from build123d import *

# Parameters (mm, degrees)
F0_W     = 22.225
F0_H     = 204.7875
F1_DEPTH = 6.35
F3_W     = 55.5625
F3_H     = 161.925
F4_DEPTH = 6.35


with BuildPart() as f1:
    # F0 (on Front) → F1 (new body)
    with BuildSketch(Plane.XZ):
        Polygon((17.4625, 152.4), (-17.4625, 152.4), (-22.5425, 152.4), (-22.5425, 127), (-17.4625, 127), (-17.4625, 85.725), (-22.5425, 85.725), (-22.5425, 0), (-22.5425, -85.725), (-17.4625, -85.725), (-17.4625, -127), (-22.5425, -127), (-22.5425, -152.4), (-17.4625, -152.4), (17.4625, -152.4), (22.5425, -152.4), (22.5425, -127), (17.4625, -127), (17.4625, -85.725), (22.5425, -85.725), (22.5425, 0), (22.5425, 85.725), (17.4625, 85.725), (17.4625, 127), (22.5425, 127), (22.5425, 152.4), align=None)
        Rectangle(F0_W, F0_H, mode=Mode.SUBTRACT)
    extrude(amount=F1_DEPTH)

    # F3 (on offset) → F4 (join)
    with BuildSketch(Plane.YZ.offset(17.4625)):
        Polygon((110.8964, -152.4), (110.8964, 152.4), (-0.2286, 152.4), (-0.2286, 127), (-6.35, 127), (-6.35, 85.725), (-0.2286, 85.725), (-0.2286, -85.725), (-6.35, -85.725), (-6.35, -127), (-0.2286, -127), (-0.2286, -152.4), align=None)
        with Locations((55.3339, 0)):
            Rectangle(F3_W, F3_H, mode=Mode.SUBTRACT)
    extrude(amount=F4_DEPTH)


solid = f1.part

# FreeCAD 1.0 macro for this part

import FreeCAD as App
import Part
import Sketcher
from FreeCAD import Vector
Q = App.Units.Quantity


def add_polygon(sketch, points):
    """Adds a closed chain of lines whose ends are joined by coincident constraints."""
    first, n = sketch.GeometryCount, len(points)
    for a, b in zip(points, points[1:] + points[:1]):
        sketch.addGeometry(Part.LineSegment(App.Vector(*a, 0), App.Vector(*b, 0)), False)
    for i in range(n):
        sketch.addConstraint(Sketcher.Constraint("Coincident", first + i, 2, first + (i + 1) % n, 1))

doc = App.newDocument("Part")
body = doc.addObject("PartDesign::Body", "Body")

sketch1 = body.newObject("Sketcher::SketchObject", "Sketch")
sketch1.AttachmentSupport = (doc.getObject("XZ_Plane"), [""])
sketch1.MapMode = "FlatFace"
add_polygon(sketch1, [(-23, 152), (-23, 127), (-17, 127), (-17, 86), (-23, 86), (-23, -86), (-17, -86), (-17, -127), (-23, -127), (-23, -152), (23, -152), (23, -127), (17, -127), (17, -86), (23, -86), (23, 86), (17, 86), (17, 127), (23, 127), (23, 152)])
add_polygon(sketch1, [(11, -102), (-11, -102), (-11, 102), (11, 102)])
sketch1.addConstraint([
    Sketcher.Constraint("Vertical", 0),
    Sketcher.Constraint("Horizontal", 1),
    Sketcher.Constraint("Vertical", 2),
    Sketcher.Constraint("Horizontal", 3),
    Sketcher.Constraint("Vertical", 4),
    Sketcher.Constraint("Horizontal", 5),
    Sketcher.Constraint("Vertical", 6),
    Sketcher.Constraint("Horizontal", 7),
    Sketcher.Constraint("Vertical", 8),
    Sketcher.Constraint("Horizontal", 9),
    Sketcher.Constraint("Vertical", 10),
    Sketcher.Constraint("Horizontal", 11),
    Sketcher.Constraint("Vertical", 12),
    Sketcher.Constraint("Horizontal", 13),
    Sketcher.Constraint("Vertical", 14),
    Sketcher.Constraint("Horizontal", 15),
    Sketcher.Constraint("Vertical", 16),
    Sketcher.Constraint("Horizontal", 17),
    Sketcher.Constraint("Vertical", 18),
    Sketcher.Constraint("Horizontal", 19),
    Sketcher.Constraint("Horizontal", 20),
    Sketcher.Constraint("Vertical", 21),
    Sketcher.Constraint("Horizontal", 22),
    Sketcher.Constraint("Vertical", 23),
    Sketcher.Constraint("Symmetric", 0, 2, 10, 2, -1, 1),
    Sketcher.Constraint("Symmetric", 2, 2, 12, 2, -1, 1),
    Sketcher.Constraint("Symmetric", 4, 2, 14, 2, -1, 1),
    Sketcher.Constraint("Symmetric", 6, 2, 16, 2, -1, 1),
    Sketcher.Constraint("Symmetric", 8, 2, 18, 2, -1, 1),
    Sketcher.Constraint("Symmetric", 20, 2, 22, 2, -1, 1),
    Sketcher.Constraint("Symmetric", 7, 2, 10, 2, -2),
    Sketcher.Constraint("Symmetric", 5, 2, 12, 2, -2),
    Sketcher.Constraint("Vertical", 0, 2, 3, 2),
    Sketcher.Constraint("DistanceY", 0, 2, 0, 1, Q("1 in")),
    Sketcher.Constraint("DistanceX", 1, 1, 1, 2, Q("0.2 in")),
    Sketcher.Constraint("DistanceY", -1, 1, 0, 2, Q("5 in")),
    Sketcher.Constraint("DistanceY", 4, 2, 4, 1, Q("6.75 in")),
    Sketcher.Constraint("DistanceX", 9, 1, 9, 2, Q("1.775 in")),
    Sketcher.Constraint("DistanceX", 20, 2, 20, 1, Q("0.875 in")),
    Sketcher.Constraint("DistanceY", 21, 1, 21, 2, Q("8.0625 in")),
])
pad1 = body.newObject("PartDesign::Pad", "Pad")
pad1.Profile = sketch1
pad1.Length = Q("0.25 in")

sketch2 = body.newObject("Sketcher::SketchObject", "Sketch001")
sketch2.AttachmentSupport = (doc.getObject("YZ_Plane"), [""])
sketch2.MapMode = "FlatFace"
sketch2.AttachmentOffset = App.Placement(Vector(0, 0, 0.6875 * 25.4), App.Rotation())
add_polygon(sketch2, [(111, -152), (111, 152), (0, 152), (0, 127), (-6, 127), (-6, 86), (0, 86), (0, -86), (-6, -86), (-6, -127), (0, -127), (0, -152)])
add_polygon(sketch2, [(83, -81), (28, -81), (28, 81), (83, 81)])
sketch2.addConstraint([
    Sketcher.Constraint("Vertical", 0),
    Sketcher.Constraint("Horizontal", 1),
    Sketcher.Constraint("Vertical", 2),
    Sketcher.Constraint("Horizontal", 3),
    Sketcher.Constraint("Vertical", 4),
    Sketcher.Constraint("Horizontal", 5),
    Sketcher.Constraint("Vertical", 6),
    Sketcher.Constraint("Horizontal", 7),
    Sketcher.Constraint("Vertical", 8),
    Sketcher.Constraint("Horizontal", 9),
    Sketcher.Constraint("Vertical", 10),
    Sketcher.Constraint("Horizontal", 11),
    Sketcher.Constraint("Horizontal", 12),
    Sketcher.Constraint("Vertical", 13),
    Sketcher.Constraint("Horizontal", 14),
    Sketcher.Constraint("Vertical", 15),
    Sketcher.Constraint("Symmetric", 4, 2, 7, 2, -1),
    Sketcher.Constraint("Symmetric", 2, 2, 9, 2, -1),
    Sketcher.Constraint("Vertical", 2, 2, 5, 2),
    Sketcher.Constraint("Equal", 2, 10),
    Sketcher.Constraint("DistanceY", 0, 1, 0, 2, Q("12 in")),
    Sketcher.Constraint("DistanceY", 2, 2, 2, 1, Q("1 in")),
    Sketcher.Constraint("DistanceY", 6, 2, 6, 1, Q("6.75 in")),
    Sketcher.Constraint("DistanceX", 1, 2, 1, 1, Q("4.375 in")),
    Sketcher.Constraint("DistanceX", 3, 2, 3, 1, Q("0.241 in")),
    Sketcher.Constraint("DistanceX", 12, 2, 12, 1, Q("2.1875 in")),
    Sketcher.Constraint("DistanceY", 13, 1, 13, 2, Q("6.375 in")),
    Sketcher.Constraint("DistanceX", 3, 2, -1, 1, Q("0.25 in")),
    Sketcher.Constraint("DistanceY", 12, 2, -1, 1, Q("3.1875 in")),
    Sketcher.Constraint("DistanceX", 6, 2, 12, 2, Q("1.09375 in")),
])
pad2 = body.newObject("PartDesign::Pad", "Pad001")
pad2.Profile = sketch2
pad2.Length = Q("0.25 in")

doc.recompute()
